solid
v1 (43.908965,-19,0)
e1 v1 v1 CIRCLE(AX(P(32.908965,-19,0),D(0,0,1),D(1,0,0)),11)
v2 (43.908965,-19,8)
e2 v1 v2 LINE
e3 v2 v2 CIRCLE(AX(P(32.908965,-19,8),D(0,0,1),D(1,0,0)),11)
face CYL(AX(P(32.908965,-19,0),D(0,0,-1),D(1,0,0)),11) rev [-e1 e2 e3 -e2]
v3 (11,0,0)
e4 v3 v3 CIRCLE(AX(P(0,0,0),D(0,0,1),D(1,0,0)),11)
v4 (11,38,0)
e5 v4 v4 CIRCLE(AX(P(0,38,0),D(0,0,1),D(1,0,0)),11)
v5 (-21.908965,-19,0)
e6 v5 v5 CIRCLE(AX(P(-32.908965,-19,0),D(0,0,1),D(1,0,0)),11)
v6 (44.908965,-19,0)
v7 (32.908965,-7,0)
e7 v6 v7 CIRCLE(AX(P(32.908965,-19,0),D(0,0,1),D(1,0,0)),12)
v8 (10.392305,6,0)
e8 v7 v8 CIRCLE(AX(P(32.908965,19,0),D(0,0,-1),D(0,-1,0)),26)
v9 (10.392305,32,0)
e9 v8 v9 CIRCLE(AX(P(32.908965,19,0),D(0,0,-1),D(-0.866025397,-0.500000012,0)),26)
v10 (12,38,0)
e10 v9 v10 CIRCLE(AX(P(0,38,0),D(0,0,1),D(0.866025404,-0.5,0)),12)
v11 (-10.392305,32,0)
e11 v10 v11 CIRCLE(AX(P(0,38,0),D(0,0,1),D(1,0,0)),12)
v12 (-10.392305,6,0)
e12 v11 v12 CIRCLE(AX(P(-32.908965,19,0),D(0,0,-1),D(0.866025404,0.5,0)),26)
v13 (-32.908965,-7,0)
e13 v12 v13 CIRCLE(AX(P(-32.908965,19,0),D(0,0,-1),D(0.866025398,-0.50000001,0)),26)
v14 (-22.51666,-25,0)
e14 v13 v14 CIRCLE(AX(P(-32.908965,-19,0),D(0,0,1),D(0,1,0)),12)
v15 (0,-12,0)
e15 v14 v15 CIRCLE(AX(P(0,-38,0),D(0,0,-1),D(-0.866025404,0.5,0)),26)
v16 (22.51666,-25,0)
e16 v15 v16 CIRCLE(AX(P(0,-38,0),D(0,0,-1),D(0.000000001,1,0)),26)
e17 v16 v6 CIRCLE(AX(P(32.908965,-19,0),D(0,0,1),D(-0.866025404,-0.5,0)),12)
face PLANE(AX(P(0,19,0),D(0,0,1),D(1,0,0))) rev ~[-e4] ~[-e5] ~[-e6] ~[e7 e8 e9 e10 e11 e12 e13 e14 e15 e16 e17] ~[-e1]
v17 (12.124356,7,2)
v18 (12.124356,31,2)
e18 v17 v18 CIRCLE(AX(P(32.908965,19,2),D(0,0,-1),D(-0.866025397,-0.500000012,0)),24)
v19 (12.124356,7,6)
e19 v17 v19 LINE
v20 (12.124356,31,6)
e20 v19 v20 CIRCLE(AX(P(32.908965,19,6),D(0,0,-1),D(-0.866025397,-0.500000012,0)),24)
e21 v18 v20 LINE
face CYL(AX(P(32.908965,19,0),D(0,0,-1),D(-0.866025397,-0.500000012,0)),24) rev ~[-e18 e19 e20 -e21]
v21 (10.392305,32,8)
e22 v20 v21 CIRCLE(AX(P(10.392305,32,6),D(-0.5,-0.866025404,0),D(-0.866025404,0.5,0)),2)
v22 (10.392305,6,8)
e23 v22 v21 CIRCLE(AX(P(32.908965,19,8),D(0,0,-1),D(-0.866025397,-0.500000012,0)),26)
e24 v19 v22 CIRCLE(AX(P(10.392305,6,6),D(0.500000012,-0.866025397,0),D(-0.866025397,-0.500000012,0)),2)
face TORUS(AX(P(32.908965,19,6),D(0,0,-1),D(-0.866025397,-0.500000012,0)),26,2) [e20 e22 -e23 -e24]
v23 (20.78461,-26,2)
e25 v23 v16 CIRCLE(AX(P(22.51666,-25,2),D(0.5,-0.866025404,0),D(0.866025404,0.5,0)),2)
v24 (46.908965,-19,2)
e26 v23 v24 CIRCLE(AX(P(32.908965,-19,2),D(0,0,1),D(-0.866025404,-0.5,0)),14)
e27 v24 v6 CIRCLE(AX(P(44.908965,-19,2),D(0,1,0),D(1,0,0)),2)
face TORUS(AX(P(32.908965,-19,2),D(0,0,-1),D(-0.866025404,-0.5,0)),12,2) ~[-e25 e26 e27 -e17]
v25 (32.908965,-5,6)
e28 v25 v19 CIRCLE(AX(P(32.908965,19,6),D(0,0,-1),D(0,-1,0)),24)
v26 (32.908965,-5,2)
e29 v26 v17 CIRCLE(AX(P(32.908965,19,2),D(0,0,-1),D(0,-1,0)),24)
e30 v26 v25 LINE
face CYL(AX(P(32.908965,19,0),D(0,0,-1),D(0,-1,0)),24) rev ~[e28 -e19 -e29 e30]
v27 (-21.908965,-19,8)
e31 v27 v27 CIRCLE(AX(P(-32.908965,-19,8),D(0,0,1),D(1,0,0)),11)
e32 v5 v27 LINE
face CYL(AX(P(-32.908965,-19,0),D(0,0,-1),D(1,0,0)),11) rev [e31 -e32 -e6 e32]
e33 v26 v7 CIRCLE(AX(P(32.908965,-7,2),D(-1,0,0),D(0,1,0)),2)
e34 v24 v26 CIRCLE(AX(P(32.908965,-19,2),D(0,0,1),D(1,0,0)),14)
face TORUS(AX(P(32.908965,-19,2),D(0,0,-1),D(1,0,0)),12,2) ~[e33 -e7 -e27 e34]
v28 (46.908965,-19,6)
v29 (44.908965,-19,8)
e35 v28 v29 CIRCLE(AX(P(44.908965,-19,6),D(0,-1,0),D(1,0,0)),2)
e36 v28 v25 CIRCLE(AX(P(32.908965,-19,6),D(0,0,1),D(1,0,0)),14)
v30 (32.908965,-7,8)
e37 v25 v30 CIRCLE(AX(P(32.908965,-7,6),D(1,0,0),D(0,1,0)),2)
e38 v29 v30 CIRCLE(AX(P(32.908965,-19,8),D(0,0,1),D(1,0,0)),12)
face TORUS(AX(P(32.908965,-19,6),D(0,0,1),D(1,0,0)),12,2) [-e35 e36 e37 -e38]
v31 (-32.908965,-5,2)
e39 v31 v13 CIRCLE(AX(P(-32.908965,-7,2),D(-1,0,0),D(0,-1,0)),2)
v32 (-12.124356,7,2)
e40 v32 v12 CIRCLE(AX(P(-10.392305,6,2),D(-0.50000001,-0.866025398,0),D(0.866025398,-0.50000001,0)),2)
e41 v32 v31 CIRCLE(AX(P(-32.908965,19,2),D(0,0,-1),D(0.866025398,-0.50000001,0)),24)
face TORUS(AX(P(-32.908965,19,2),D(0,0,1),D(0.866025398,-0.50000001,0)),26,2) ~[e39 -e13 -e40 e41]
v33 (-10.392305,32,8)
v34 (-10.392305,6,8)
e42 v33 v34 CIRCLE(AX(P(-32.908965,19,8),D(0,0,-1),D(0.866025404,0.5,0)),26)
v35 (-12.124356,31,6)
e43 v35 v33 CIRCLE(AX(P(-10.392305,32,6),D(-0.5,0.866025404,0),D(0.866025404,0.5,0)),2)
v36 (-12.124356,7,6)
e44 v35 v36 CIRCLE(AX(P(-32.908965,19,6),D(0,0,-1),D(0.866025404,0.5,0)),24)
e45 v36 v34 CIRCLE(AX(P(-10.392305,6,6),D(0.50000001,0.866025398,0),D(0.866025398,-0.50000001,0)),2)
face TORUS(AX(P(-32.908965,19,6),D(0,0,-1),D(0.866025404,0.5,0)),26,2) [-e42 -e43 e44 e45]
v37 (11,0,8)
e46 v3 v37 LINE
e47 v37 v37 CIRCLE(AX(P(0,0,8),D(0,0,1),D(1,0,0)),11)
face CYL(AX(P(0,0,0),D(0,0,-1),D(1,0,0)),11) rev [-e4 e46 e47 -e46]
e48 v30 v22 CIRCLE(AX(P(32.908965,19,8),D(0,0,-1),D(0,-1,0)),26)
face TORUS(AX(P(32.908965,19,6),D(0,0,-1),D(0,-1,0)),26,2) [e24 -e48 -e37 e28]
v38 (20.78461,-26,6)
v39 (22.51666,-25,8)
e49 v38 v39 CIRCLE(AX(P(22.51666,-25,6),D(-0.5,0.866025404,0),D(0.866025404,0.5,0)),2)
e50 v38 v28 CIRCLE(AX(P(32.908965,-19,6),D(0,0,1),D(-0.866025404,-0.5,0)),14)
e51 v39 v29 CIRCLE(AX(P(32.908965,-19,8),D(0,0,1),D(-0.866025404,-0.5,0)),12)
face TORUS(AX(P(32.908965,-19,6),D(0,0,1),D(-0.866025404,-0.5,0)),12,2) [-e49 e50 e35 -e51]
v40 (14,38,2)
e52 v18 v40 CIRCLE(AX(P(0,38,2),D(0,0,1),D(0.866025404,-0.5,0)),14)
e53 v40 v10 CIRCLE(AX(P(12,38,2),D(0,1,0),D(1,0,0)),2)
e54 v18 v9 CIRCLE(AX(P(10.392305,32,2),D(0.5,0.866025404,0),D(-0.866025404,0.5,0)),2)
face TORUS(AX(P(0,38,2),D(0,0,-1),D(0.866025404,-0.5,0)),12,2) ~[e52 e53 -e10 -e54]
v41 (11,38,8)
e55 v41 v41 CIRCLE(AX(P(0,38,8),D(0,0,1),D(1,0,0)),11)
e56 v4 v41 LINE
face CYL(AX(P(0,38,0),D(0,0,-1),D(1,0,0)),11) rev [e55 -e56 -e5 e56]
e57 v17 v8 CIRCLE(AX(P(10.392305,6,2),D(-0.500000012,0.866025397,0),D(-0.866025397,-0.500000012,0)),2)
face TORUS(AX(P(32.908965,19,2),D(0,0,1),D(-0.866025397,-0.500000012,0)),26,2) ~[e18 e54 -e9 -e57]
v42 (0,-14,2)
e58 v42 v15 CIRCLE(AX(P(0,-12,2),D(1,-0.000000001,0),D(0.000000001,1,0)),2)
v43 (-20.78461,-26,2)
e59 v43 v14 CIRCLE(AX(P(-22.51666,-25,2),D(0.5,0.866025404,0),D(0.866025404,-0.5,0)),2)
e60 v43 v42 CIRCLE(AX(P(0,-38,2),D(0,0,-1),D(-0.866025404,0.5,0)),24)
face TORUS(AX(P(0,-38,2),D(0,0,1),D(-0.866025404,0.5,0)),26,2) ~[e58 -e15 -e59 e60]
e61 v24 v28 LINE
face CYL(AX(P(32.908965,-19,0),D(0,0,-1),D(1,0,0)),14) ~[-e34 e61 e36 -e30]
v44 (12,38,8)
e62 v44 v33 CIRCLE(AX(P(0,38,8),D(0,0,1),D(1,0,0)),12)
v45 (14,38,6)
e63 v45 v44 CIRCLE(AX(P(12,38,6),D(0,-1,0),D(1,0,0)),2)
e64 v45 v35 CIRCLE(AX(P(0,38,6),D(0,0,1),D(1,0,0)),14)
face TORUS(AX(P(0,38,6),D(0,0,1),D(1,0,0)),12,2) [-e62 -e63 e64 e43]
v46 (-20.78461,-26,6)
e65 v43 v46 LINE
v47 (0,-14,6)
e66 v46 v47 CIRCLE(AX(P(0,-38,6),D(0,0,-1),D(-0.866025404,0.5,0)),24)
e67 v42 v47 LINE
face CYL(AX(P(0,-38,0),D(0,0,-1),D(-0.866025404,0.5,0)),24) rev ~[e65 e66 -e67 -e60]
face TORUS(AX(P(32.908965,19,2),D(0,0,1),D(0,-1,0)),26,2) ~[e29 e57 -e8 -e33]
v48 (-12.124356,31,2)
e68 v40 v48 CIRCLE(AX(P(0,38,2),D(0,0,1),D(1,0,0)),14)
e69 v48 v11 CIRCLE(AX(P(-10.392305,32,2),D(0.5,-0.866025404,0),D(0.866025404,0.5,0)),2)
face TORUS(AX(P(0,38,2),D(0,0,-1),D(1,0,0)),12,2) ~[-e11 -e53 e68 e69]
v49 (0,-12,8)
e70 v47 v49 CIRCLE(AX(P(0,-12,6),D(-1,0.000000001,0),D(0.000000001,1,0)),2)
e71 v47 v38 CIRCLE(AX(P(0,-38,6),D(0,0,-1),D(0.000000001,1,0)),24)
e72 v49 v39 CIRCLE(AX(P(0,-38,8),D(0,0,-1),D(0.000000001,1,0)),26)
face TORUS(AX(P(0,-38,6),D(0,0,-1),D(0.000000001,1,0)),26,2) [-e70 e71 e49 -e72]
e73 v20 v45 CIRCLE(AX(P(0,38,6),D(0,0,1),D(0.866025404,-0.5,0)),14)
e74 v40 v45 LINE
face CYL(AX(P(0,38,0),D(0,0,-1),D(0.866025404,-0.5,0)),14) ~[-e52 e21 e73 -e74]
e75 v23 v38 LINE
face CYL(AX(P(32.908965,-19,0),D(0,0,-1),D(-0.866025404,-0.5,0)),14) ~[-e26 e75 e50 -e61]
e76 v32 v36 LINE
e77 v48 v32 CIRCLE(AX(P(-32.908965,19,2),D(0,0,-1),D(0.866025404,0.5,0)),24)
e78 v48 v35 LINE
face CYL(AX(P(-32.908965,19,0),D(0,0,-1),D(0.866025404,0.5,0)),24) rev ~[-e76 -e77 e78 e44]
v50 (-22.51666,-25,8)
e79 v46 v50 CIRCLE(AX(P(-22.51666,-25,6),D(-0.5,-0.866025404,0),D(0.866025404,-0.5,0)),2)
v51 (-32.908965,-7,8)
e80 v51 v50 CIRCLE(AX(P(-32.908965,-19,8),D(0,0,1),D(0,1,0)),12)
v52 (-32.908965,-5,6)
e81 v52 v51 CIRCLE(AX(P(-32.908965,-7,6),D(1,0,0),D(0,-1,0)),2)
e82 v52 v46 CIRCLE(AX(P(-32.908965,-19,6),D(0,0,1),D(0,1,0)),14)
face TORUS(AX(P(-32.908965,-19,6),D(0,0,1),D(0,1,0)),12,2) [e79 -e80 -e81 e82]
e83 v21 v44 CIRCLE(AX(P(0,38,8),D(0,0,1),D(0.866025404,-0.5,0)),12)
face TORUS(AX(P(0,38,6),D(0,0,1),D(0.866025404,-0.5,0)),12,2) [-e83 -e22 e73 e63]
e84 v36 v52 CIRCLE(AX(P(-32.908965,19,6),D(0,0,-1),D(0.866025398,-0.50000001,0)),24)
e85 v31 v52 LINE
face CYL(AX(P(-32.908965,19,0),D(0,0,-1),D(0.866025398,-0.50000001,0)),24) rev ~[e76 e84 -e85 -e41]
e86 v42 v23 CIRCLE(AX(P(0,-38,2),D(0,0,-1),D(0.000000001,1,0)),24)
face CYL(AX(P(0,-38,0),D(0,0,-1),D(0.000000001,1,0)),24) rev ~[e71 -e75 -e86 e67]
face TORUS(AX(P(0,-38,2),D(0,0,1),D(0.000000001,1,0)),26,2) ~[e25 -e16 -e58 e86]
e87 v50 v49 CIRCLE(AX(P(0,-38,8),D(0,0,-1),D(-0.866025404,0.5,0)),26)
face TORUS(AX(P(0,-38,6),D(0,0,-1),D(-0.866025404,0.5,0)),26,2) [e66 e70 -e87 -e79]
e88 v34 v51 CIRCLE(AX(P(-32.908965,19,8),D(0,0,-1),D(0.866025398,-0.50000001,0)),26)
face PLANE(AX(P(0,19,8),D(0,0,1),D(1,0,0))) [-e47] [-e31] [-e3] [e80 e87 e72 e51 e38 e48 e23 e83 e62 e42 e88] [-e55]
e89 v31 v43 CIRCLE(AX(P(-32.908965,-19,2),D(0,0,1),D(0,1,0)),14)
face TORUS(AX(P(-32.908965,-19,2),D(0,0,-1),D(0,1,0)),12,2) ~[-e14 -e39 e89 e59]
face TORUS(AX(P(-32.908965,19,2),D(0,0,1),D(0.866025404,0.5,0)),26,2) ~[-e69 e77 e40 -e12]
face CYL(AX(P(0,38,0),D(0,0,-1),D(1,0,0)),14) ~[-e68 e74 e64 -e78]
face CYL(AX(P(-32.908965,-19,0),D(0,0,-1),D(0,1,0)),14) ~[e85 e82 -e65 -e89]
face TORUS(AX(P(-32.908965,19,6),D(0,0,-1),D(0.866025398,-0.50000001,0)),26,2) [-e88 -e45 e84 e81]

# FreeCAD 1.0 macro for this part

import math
import FreeCAD as App
import Part
import Sketcher
Q = App.Units.Quantity


def edges_at(feature, points):
    """Names of the edges that pass closest to the given points."""
    edges = feature.Shape.Edges
    near = lambda p: min(range(len(edges)), key=lambda i: edges[i].distToShape(Part.Vertex(*p))[0])
    return sorted({f"Edge{near(p) + 1}" for p in points})

doc = App.newDocument("Part")
params = doc.addObject("Spreadsheet::Sheet", "Params")
for row, (alias, value) in enumerate([
    ("sketch1_diameter", "22 mm"),
    ("sketch1_radius", "24 mm"),
    ("sketch1_radius2", "14 mm"),
    ("pad1_length", "8 mm"),
    ("fillet_radius", "2 mm"),
], start=1):
    params.set(f"A{row}", alias)
    params.set(f"B{row}", "=" + value)
    params.setAlias(f"B{row}", alias)

body = doc.addObject("PartDesign::Body", "Body")

sketch1 = body.newObject("Sketcher::SketchObject", "Sketch")
sketch1.AttachmentSupport = (doc.getObject("XY_Plane"), [""])
sketch1.MapMode = "FlatFace"
sketch1.addGeometry([
    Part.ArcOfCircle(Part.Circle(App.Vector(-33, 19, 0), App.Vector(0, 0, 1), 24), math.radians(-30), math.radians(30)),
    Part.ArcOfCircle(Part.Circle(App.Vector(-33, 19, 0), App.Vector(0, 0, 1), 24), math.radians(-90), math.radians(-30)),
    Part.ArcOfCircle(Part.Circle(App.Vector(-33, -19, 0), App.Vector(0, 0, 1), 14), math.radians(90), math.radians(330)),
    Part.ArcOfCircle(Part.Circle(App.Vector(0, -38, 0), App.Vector(0, 0, 1), 24), math.radians(90), math.radians(150)),
    Part.ArcOfCircle(Part.Circle(App.Vector(0, -38, 0), App.Vector(0, 0, 1), 24), math.radians(30), math.radians(90)),
    Part.ArcOfCircle(Part.Circle(App.Vector(33, -19, 0), App.Vector(0, 0, 1), 14), math.radians(-150), math.radians(0)),
    Part.ArcOfCircle(Part.Circle(App.Vector(33, -19, 0), App.Vector(0, 0, 1), 14), math.radians(0), math.radians(90)),
    Part.ArcOfCircle(Part.Circle(App.Vector(33, 19, 0), App.Vector(0, 0, 1), 24), math.radians(-150), math.radians(-90)),
    Part.ArcOfCircle(Part.Circle(App.Vector(33, 19, 0), App.Vector(0, 0, 1), 24), math.radians(150), math.radians(210)),
    Part.ArcOfCircle(Part.Circle(App.Vector(0, 38, 0), App.Vector(0, 0, 1), 14), math.radians(-30), math.radians(0)),
    Part.ArcOfCircle(Part.Circle(App.Vector(0, 38, 0), App.Vector(0, 0, 1), 14), math.radians(0), math.radians(210)),
    Part.Circle(App.Vector(-33, -19, 0), App.Vector(0, 0, 1), 11),
    Part.Circle(App.Vector(33, -19, 0), App.Vector(0, 0, 1), 11),
    Part.Circle(App.Vector(0, 0, 0), App.Vector(0, 0, 1), 11),
    Part.Circle(App.Vector(0, 38, 0), App.Vector(0, 0, 1), 11),
], False)
sketch1.addConstraint([
    Sketcher.Constraint("Tangent", 0, 1, 1, 2),
    Sketcher.Constraint("Tangent", 1, 1, 2, 1),
    Sketcher.Constraint("Tangent", 2, 2, 3, 2),
    Sketcher.Constraint("Tangent", 3, 1, 4, 2),
    Sketcher.Constraint("Tangent", 4, 1, 5, 1),
    Sketcher.Constraint("Tangent", 5, 2, 6, 1),
    Sketcher.Constraint("Tangent", 6, 2, 7, 2),
    Sketcher.Constraint("Tangent", 7, 1, 8, 2),
    Sketcher.Constraint("Tangent", 8, 1, 9, 1),
    Sketcher.Constraint("Tangent", 9, 2, 10, 1),
    Sketcher.Constraint("Tangent", 10, 2, 0, 2),
    Sketcher.Constraint("Coincident", 13, 3, -1, 1),
    Sketcher.Constraint("Coincident", 11, 3, 2, 3),
    Sketcher.Constraint("Coincident", 12, 3, 5, 3),
    Sketcher.Constraint("Coincident", 14, 3, 9, 3),
    Sketcher.Constraint("Equal", 0, 1),
    Sketcher.Constraint("Equal", 1, 3),
    Sketcher.Constraint("Equal", 3, 4),
    Sketcher.Constraint("Equal", 2, 5),
    Sketcher.Constraint("Equal", 5, 6),
    Sketcher.Constraint("Equal", 4, 7),
    Sketcher.Constraint("Equal", 7, 8),
    Sketcher.Constraint("Equal", 6, 9),
    Sketcher.Constraint("Equal", 9, 10),
    Sketcher.Constraint("Equal", 11, 12),
    Sketcher.Constraint("Equal", 12, 13),
    Sketcher.Constraint("Equal", 13, 14),
    Sketcher.Constraint("Symmetric", 0, 3, 5, 3, -1, 1),
    Sketcher.Constraint("Symmetric", 2, 3, 5, 3, -2),
    Sketcher.Constraint("Symmetric", 0, 1, 7, 1, -2),
    Sketcher.Constraint("PointOnObject", 3, 1, -2),
    Sketcher.Constraint("Horizontal", 12, 3, 5, 2),
    Sketcher.Constraint("Horizontal", 14, 3, 9, 2),
    Sketcher.Constraint("Vertical", 7, 1, 8, 1),
    Sketcher.Constraint("Diameter", 11, Q("22 mm")),
    Sketcher.Constraint("Radius", 0, Q("24 mm")),
    Sketcher.Constraint("Radius", 2, Q("14 mm")),
    Sketcher.Constraint("DistanceY", 3, 3, -1, 1, Q("38 mm")),
])
sketch1.setExpression("Constraints[34]", "Params.sketch1_diameter")
sketch1.setExpression("Constraints[35]", "Params.sketch1_radius")
sketch1.setExpression("Constraints[36]", "Params.sketch1_radius2")
pad1 = body.newObject("PartDesign::Pad", "Pad")
pad1.Profile = sketch1
pad1.setExpression("Length", "Params.pad1_length")
doc.recompute()

fillet = body.newObject("PartDesign::Fillet", "Fillet")
fillet.Base = (pad1, edges_at(pad1, [
    (-8.909, 19, 8),
    (-8.909, 19, 0),
    (8.909, 19, 0),
    (-3.623, 51.523, 0),
]))
fillet.setExpression("Radius", "Params.fillet_radius")

doc.recompute()
